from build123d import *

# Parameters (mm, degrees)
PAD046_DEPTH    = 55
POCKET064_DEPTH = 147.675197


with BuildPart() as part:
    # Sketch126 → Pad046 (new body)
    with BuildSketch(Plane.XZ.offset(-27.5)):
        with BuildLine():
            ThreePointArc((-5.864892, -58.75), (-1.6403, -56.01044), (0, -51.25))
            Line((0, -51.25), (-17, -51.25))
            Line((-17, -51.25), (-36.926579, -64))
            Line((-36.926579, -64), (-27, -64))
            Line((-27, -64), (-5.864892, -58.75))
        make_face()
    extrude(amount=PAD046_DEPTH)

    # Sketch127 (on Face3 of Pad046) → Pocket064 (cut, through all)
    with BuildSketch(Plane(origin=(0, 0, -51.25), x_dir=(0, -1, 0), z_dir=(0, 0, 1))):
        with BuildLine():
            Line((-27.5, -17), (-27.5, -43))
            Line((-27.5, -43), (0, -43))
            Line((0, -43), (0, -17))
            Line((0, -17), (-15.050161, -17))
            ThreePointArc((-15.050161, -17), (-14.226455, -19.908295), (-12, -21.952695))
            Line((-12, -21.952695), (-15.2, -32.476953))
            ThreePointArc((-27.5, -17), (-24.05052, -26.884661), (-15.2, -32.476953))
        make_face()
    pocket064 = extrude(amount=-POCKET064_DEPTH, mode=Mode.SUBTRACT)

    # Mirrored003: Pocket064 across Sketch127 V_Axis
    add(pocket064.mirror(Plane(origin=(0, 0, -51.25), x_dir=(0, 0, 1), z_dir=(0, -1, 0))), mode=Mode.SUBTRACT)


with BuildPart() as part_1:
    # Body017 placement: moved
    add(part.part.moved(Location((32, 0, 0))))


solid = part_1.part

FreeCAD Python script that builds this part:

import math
import FreeCAD as App
import Part
import Sketcher

doc = App.newDocument("Part")
body = doc.addObject("PartDesign::Body", "Body")

sketch1 = doc.addObject("Sketcher::SketchObject", "Sketch")
body.addObject(sketch1)
sketch1.AttachmentSupport = (doc.XZ_Plane, [""])
sketch1.MapMode = "FlatFace"
sketch1.AttachmentOffset = App.Placement(App.Vector(0, 0, -27.5), App.Rotation())
sketch1.addGeometry([
    Part.ArcOfCircle(Part.Circle(App.Vector(-8, -51, 0), App.Vector(0, 0, 1), 8), math.radians(-76), math.radians(0)),
    Part.LineSegment(App.Vector(0, -51, 0), App.Vector(-17, -51, 0)),
    Part.LineSegment(App.Vector(-17, -51, 0), App.Vector(-37, -64, 0)),
    Part.LineSegment(App.Vector(-37, -64, 0), App.Vector(-27, -64, 0)),
    Part.LineSegment(App.Vector(-27, -64, 0), App.Vector(-6, -59, 0)),
], False)
sketch1.addConstraint([
    Sketcher.Constraint("Coincident", 0, 2, 1, 1),
    Sketcher.Constraint("Coincident", 1, 2, 2, 1),
    Sketcher.Constraint("Coincident", 2, 2, 3, 1),
    Sketcher.Constraint("Coincident", 3, 2, 4, 1),
    Sketcher.Constraint("Tangent", 4, 2, 0, 1),
    Sketcher.Constraint("Horizontal", 1),
    Sketcher.Constraint("Horizontal", 3),
    Sketcher.Constraint("PointOnObject", 0, 2, -2),
    Sketcher.Constraint("DistanceX", 1, 2, 1, 1, 17.0),
    Sketcher.Constraint("DistanceY", 2, 2, -1, 1, 64.0),
    Sketcher.Constraint("DistanceX", 3, 2, -1, 1, 27.0),
    Sketcher.Constraint("Radius", 0, 7.727901),
    Sketcher.Constraint("DistanceY", 4, 2, 0, 2, 7.5),
    Sketcher.Constraint("DistanceY", 0, 2, -1, 1, 51.25),
    Sketcher.Constraint("DistanceX", 3, 1, 3, 2, 9.926579),
])
pad1 = doc.addObject("PartDesign::Pad", "Pad")
body.addObject(pad1)
pad1.Profile = sketch1
pad1.Length = 55

sketch2 = doc.addObject("Sketcher::SketchObject", "Sketch001")
body.addObject(sketch2)
sketch2.AttachmentSupport = (doc.XY_Plane, [""])
sketch2.MapMode = "FlatFace"
sketch2.AttachmentOffset = App.Placement(App.Vector(0, 0, -51.25), App.Rotation())
sketch2.addGeometry([
    Part.LineSegment(App.Vector(-17, 28, 0), App.Vector(-43, 28, 0)),
    Part.LineSegment(App.Vector(-43, 28, 0), App.Vector(-43, 0, 0)),
    Part.LineSegment(App.Vector(-43, 0, 0), App.Vector(-17, 0, 0)),
    Part.LineSegment(App.Vector(-17, 0, 0), App.Vector(-17, 15, 0)),
    Part.ArcOfCircle(Part.Circle(App.Vector(-17, 10, 0), App.Vector(0, 0, 1), 6), math.radians(90), math.radians(153)),
    Part.LineSegment(App.Vector(-22, 12, 0), App.Vector(-32, 15, 0)),
    Part.ArcOfCircle(Part.Circle(App.Vector(-17, 12, 0), App.Vector(0, 0, 1), 16), math.radians(90), math.radians(167)),
], False)
sketch2.addConstraint([
    Sketcher.Constraint("Coincident", 0, 2, 1, 1),
    Sketcher.Constraint("Coincident", 1, 2, 2, 1),
    Sketcher.Constraint("Coincident", 2, 2, 3, 1),
    Sketcher.Constraint("Coincident", 3, 2, 4, 1),
    Sketcher.Constraint("Coincident", 4, 2, 5, 1),
    Sketcher.Constraint("Coincident", 5, 2, 6, 2),
    Sketcher.Constraint("Tangent", 6, 1, 0, 1),
    Sketcher.Constraint("Horizontal", 0),
    Sketcher.Constraint("Vertical", 1),
    Sketcher.Constraint("Horizontal", 2),
    Sketcher.Constraint("Vertical", 3),
    Sketcher.Constraint("PointOnObject", 1, 2, -1),
    Sketcher.Constraint("Vertical", 6, 3, 2, 2),
    Sketcher.Constraint("DistanceX", 0, 2, 0, 1, 26.0),
    Sketcher.Constraint("Distance", 5, 11.0),
    Sketcher.Constraint("DistanceY", 1, 2, 1, 1, 27.5),
    Sketcher.Constraint("DistanceX", 6, 3, -1, 1, 17.000001),
    Sketcher.Constraint("DistanceY", -1, 1, 4, 2, 12.0),
    Sketcher.Constraint("DistanceY", -1, 1, 5, 2, 15.2),
    Sketcher.Constraint("Radius", 4, 5.546022),
    Sketcher.Constraint("Radius", 6, 15.887238),
    Sketcher.Constraint("DistanceY", 3, 1, 3, 2, 15.050161),
])
pocket1 = doc.addObject("PartDesign::Pocket", "Pocket")
body.addObject(pocket1)
pocket1.Profile = sketch2
pocket1.Type = "ThroughAll"
doc.recompute()

mirrored = doc.addObject("PartDesign::Mirrored", "Mirrored")
body.addObject(mirrored)
mirrored.Originals = [pocket1]
mirrored.MirrorPlane = (doc.XZ_Plane, [""])
body.Tip = mirrored
body2 = doc.addObject("PartDesign::Body", "Body001")
doc.recompute()

body.Placement = App.Placement(App.Vector(32, 0, 0), App.Rotation(App.Vector(0, 0, 1), 0))
boolean = doc.addObject("PartDesign::Boolean", "Boolean")
body2.addObject(boolean)
boolean.Type = "Fuse"
boolean.addObjects([body])

doc.recompute()
